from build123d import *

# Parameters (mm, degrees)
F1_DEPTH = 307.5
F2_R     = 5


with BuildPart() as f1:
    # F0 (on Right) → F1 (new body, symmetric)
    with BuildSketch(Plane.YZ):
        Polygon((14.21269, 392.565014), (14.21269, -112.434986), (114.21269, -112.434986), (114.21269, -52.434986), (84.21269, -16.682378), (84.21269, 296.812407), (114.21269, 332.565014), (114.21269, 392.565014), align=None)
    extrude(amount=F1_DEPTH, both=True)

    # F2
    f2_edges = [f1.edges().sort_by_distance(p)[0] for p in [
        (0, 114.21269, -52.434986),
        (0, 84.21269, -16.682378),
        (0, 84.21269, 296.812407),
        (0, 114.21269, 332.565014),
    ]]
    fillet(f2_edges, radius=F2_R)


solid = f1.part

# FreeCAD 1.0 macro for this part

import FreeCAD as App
import Part
import Sketcher
Q = App.Units.Quantity


def edges_at(feature, points):
    """Names of the edges that pass closest to the given points."""
    edges = feature.Shape.Edges
    near = lambda p: min(range(len(edges)), key=lambda i: edges[i].distToShape(Part.Vertex(*p))[0])
    return sorted({f"Edge{near(p) + 1}" for p in points})


def add_polygon(sketch, points):
    """Adds a closed chain of lines whose ends are joined by coincident constraints."""
    first, n = sketch.GeometryCount, len(points)
    for a, b in zip(points, points[1:] + points[:1]):
        sketch.addGeometry(Part.LineSegment(App.Vector(*a, 0), App.Vector(*b, 0)), False)
    for i in range(n):
        sketch.addConstraint(Sketcher.Constraint("Coincident", first + i, 2, first + (i + 1) % n, 1))

doc = App.newDocument("Part")
body = doc.addObject("PartDesign::Body", "Body")

# Sketch on YZ plane
sketch1 = body.newObject("Sketcher::SketchObject", "Sketch")
sketch1.AttachmentSupport = (doc.getObject("YZ_Plane"), [""])
sketch1.MapMode = "FlatFace"
add_polygon(sketch1, [(14, 393), (14, -112), (114, -112), (114, -52), (84, -17), (84, 297), (114, 333), (114, 393)])  # lines 0-7
sketch1.addConstraint([
    Sketcher.Constraint("Vertical", 0),
    Sketcher.Constraint("Horizontal", 1),
    Sketcher.Constraint("Vertical", 2),
    Sketcher.Constraint("Vertical", 4),
    Sketcher.Constraint("Vertical", 6),
    Sketcher.Constraint("Horizontal", 7),
    Sketcher.Constraint("Vertical", 2, 2, 5, 2),
    Sketcher.Constraint("Equal", 2, 6),
    Sketcher.Constraint("Equal", 3, 5),
    Sketcher.Constraint("DistanceX", 1, 1, 1, 2, Q("100 mm")),
    Sketcher.Constraint("DistanceY", 0, 2, 0, 1, Q("505 mm")),
    Sketcher.Constraint("DistanceY", 2, 1, 2, 2, Q("60 mm")),
    Sketcher.Constraint("Angle", 3, Q("130 deg")),
    Sketcher.Constraint("DistanceX", 3, 2, 2, 2, Q("30 mm")),
    Sketcher.Constraint("DistanceX", -1, 1, 0, 2, Q("14.21269 mm")),
    Sketcher.Constraint("DistanceY", 3, 2, -1, 1, Q("16.682378 mm")),
])
pad1 = body.newObject("PartDesign::Pad", "Pad")
pad1.Profile = sketch1
pad1.Length = 615
pad1.Midplane = True
doc.recompute()

fillet = body.newObject("PartDesign::Fillet", "Fillet")
fillet.Base = (pad1, edges_at(pad1, [
    (0, 114.213, -52.435),
    (0, 84.213, -16.682),
    (0, 84.213, 296.812),
    (0, 114.213, 332.565),
]))
fillet.Radius = 5

doc.recompute()
